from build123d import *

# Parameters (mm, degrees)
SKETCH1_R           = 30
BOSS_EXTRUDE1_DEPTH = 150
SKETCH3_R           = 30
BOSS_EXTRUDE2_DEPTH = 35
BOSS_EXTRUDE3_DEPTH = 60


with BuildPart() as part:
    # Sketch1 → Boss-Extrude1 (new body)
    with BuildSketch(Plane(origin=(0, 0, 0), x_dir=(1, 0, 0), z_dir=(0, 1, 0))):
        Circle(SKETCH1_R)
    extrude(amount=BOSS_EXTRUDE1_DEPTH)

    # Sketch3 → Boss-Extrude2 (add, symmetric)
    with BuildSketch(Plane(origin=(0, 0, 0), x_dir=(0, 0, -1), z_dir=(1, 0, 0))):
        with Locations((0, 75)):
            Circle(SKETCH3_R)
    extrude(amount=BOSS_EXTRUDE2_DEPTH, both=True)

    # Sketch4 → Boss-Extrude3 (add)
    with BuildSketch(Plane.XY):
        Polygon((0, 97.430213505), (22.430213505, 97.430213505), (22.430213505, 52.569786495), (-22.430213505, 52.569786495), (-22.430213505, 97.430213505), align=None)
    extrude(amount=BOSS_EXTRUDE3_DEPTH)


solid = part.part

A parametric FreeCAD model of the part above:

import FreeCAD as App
import Part
import Sketcher
Q = App.Units.Quantity


def add_polygon(sketch, points):
    """Adds a closed chain of lines whose ends are joined by coincident constraints."""
    first, n = sketch.GeometryCount, len(points)
    for a, b in zip(points, points[1:] + points[:1]):
        sketch.addGeometry(Part.LineSegment(App.Vector(*a, 0), App.Vector(*b, 0)), False)
    for i in range(n):
        sketch.addConstraint(Sketcher.Constraint("Coincident", first + i, 2, first + (i + 1) % n, 1))

doc = App.newDocument("Part")
params = doc.addObject("Spreadsheet::Sheet", "Params")
for row, (alias, value) in enumerate([
    ("sketch1_diameter", "60 mm"),
    ("pad1_length", "150 mm"),
    ("sketch2_diameter", "60 mm"),
    ("pad2_length", "70 mm"),
    ("pad3_length", "60 mm"),
], start=1):
    params.set(f"A{row}", alias)
    params.set(f"B{row}", "=" + value)
    params.setAlias(f"B{row}", alias)

body = doc.addObject("PartDesign::Body", "Body")

# Sketch on XZ plane
sketch1 = doc.addObject("Sketcher::SketchObject", "Sketch")
body.addObject(sketch1)
sketch1.AttachmentSupport = (doc.XZ_Plane, [""])
sketch1.MapMode = "FlatFace"
sketch1.addGeometry(Part.Circle(App.Vector(0, 0, 0), App.Vector(0, 0, 1), 30), False)
sketch1.addConstraint(Sketcher.Constraint("Coincident", 0, 3, -1, 1))
sketch1.addConstraint(Sketcher.Constraint("Diameter", 0, Q("60 mm")))
sketch1.setExpression("Constraints[1]", "Params.sketch1_diameter")
pad1 = doc.addObject("PartDesign::Pad", "Pad")
body.addObject(pad1)
pad1.Profile = sketch1
pad1.setExpression("Length", "Params.pad1_length")
pad1.Reversed = True

# Sketch on YZ plane
sketch2 = doc.addObject("Sketcher::SketchObject", "Sketch001")
body.addObject(sketch2)
sketch2.AttachmentSupport = (doc.YZ_Plane, [""])
sketch2.MapMode = "FlatFace"
sketch2.addGeometry(Part.Circle(App.Vector(75, 0, 0), App.Vector(0, 0, 1), 30), False)
sketch2.addConstraint(Sketcher.Constraint("PointOnObject", 0, 3, -1))
sketch2.addConstraint(Sketcher.Constraint("Diameter", 0, Q("60 mm")))
sketch2.addConstraint(Sketcher.Constraint("DistanceX", -1, 1, 0, 3, Q("75 mm")))
sketch2.setExpression("Constraints[1]", "Params.sketch2_diameter")
pad2 = doc.addObject("PartDesign::Pad", "Pad001")
body.addObject(pad2)
pad2.Profile = sketch2
pad2.setExpression("Length", "Params.pad2_length")
pad2.Midplane = True

# Sketch on XY plane
sketch3 = doc.addObject("Sketcher::SketchObject", "Sketch002")
body.addObject(sketch3)
sketch3.AttachmentSupport = (doc.XY_Plane, [""])
sketch3.MapMode = "FlatFace"
add_polygon(sketch3, [(22, 97), (-22, 97), (-22, 53), (22, 53)])  # lines 0-3
sketch3.addConstraint(Sketcher.Constraint("Horizontal", 0))
sketch3.addConstraint(Sketcher.Constraint("Vertical", 1))
sketch3.addConstraint(Sketcher.Constraint("Horizontal", 2))
sketch3.addConstraint(Sketcher.Constraint("Vertical", 3))
sketch3.addConstraint(Sketcher.Constraint("Equal", 2, 1))
sketch3.addConstraint(Sketcher.Constraint("DistanceX", 0, 2, 0, 1, Q("44.860427 mm")))
sketch3.addConstraint(Sketcher.Constraint("DistanceX", 0, 2, -1, 1, Q("22.430214 mm")))
sketch3.addConstraint(Sketcher.Constraint("DistanceY", -1, 1, 0, 2, Q("97.430214 mm")))
pad3 = doc.addObject("PartDesign::Pad", "Pad002")
body.addObject(pad3)
pad3.Profile = sketch3
pad3.setExpression("Length", "Params.pad3_length")

doc.recompute()
